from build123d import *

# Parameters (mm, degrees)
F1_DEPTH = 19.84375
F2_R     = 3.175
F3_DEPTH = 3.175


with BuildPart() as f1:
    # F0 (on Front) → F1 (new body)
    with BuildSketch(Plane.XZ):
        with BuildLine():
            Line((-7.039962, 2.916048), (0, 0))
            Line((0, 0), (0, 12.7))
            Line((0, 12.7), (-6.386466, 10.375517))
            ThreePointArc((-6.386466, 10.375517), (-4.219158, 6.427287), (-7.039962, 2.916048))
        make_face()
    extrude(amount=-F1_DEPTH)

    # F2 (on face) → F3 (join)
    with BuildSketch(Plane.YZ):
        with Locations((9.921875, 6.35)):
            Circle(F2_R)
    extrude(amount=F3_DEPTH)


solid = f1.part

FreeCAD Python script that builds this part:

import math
import FreeCAD as App
import Part
import Sketcher

V = App.Vector
Q = App.Units.Quantity

doc = App.newDocument("Part")
params = doc.addObject("Spreadsheet::Sheet", "Params")
for row, (alias, value) in enumerate([
    ("sketch1_height", "0.5 in"),
    ("sketch1_length", "0.3 in"),
    ("pad1_length", "0.78125 in"),
    ("sketch2_diameter", "0.25 in"),
    ("pad2_length", "0.125 in"),
], start=1):
    params.set(f"A{row}", alias)
    params.set(f"B{row}", "=" + value)
    params.setAlias(f"B{row}", alias)

body = doc.addObject("PartDesign::Body", "Body")

# Sketch on XZ plane
sketch1 = body.newObject("Sketcher::SketchObject", "Sketch")
sketch1.AttachmentSupport = (doc.getObject("XZ_Plane"), [""])
sketch1.MapMode = "FlatFace"
sketch1.addGeometry([
    Part.LineSegment(V(-7, 2.9, 0), V(0, 0, 0)),
    Part.LineSegment(V(0, 0, 0), V(0, 12.7, 0)),
    Part.LineSegment(V(0, 12.7, 0), V(-6.4, 10.4, 0)),
    Part.ArcOfCircle(Part.Circle(V(-8.3, 6.8, 0), V(0, 0, 1), 4.1), math.radians(-73), math.radians(63)),
], False)
sketch1.addConstraint([
    Sketcher.Constraint("Coincident", 0, 2, 1, 1),
    Sketcher.Constraint("Coincident", 1, 2, 2, 1),
    Sketcher.Constraint("Coincident", 2, 2, 3, 2),
    Sketcher.Constraint("Coincident", 3, 1, 0, 1),
    Sketcher.Constraint("Vertical", 1),
    Sketcher.Constraint("Coincident", 0, 2, -1, 1),
    Sketcher.Constraint("DistanceY", 1, 1, 1, 2, Q("0.5 in")),
    Sketcher.Constraint("Angle", 2, Q("-160.000004 deg")),
    Sketcher.Constraint("Distance", 0, Q("0.3 in")),
    Sketcher.Constraint("Angle", 0, Q("-22.500002 deg")),
    Sketcher.Constraint("Radius", 3, Q("0.1595 in")),
    Sketcher.Constraint("DistanceX", 3, 3, -1, 1, Q("0.325 in")),
])
sketch1.setExpression("Constraints[6]", "Params.sketch1_height")
sketch1.setExpression("Constraints[8]", "Params.sketch1_length")
pad1 = body.newObject("PartDesign::Pad", "Pad")
pad1.Profile = sketch1
pad1.setExpression("Length", "Params.pad1_length")
pad1.Reversed = True

# Sketch on YZ plane
sketch2 = body.newObject("Sketcher::SketchObject", "Sketch001")
sketch2.AttachmentSupport = (doc.getObject("YZ_Plane"), [""])
sketch2.MapMode = "FlatFace"
sketch2.addGeometry(Part.Circle(V(9.9, 6.3, 0), V(0, 0, 1), 3.2), False)
sketch2.addConstraint([
    Sketcher.Constraint("Diameter", 0, Q("0.25 in")),
    Sketcher.Constraint("DistanceY", -1, 1, 0, 3, Q("0.25 in")),
    Sketcher.Constraint("DistanceX", -1, 1, 0, 3, Q("0.390625 in")),
])
sketch2.setExpression("Constraints[0]", "Params.sketch2_diameter")
pad2 = body.newObject("PartDesign::Pad", "Pad001")
pad2.Profile = sketch2
pad2.setExpression("Length", "Params.pad2_length")

doc.recompute()
